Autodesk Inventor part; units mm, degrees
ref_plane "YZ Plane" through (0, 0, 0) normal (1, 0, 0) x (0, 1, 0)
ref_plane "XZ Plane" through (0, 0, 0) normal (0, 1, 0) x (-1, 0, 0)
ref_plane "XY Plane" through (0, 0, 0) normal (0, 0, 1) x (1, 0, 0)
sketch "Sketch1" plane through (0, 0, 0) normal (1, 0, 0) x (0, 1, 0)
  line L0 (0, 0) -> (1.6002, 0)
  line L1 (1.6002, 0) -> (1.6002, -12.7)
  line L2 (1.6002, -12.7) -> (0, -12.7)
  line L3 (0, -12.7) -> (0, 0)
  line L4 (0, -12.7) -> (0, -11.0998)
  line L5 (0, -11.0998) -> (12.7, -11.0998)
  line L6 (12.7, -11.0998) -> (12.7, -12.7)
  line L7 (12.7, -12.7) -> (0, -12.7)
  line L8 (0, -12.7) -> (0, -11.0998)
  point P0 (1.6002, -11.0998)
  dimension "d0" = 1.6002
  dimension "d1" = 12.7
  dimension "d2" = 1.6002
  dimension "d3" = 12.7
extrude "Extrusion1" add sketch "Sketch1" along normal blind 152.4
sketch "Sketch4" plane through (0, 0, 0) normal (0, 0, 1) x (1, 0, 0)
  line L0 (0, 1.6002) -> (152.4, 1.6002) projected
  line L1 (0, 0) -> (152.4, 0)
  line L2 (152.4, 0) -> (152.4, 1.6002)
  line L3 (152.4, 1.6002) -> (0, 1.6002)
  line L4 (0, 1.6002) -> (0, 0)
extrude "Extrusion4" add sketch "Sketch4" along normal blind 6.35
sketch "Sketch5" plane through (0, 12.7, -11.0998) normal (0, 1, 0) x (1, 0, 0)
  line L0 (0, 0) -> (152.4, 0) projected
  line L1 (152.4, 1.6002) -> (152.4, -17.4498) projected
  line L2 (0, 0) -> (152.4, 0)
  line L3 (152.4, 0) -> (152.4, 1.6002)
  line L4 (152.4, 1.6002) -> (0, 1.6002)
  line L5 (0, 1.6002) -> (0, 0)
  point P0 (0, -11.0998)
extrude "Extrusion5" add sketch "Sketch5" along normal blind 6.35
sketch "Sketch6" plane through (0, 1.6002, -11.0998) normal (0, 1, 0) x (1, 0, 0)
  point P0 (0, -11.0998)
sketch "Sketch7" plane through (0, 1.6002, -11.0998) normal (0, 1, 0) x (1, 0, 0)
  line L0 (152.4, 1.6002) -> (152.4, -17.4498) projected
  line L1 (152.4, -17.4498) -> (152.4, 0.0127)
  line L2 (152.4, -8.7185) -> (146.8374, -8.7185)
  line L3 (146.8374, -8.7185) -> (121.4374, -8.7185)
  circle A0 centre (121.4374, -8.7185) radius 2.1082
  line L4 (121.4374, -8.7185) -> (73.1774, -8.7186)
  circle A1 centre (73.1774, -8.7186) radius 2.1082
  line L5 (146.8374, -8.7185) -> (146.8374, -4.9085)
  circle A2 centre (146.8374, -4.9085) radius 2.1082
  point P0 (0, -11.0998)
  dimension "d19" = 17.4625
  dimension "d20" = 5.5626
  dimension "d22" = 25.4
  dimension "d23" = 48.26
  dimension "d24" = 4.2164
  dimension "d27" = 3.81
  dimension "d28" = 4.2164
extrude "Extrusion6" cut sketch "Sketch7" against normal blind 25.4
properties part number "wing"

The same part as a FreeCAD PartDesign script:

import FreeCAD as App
import Part
import Sketcher

V = App.Vector
Q = App.Units.Quantity

doc = App.newDocument("Part")
body = doc.addObject("PartDesign::Body", "Body")

# Sketch on YZ plane
sketch1 = body.newObject("Sketcher::SketchObject", "Sketch")
sketch1.AttachmentSupport = (doc.getObject("YZ_Plane"), [""])
sketch1.MapMode = "FlatFace"
sketch1.addGeometry([
    Part.LineSegment(V(1.6002, 0, 0), V(0, 0, 0)),  # 0
    Part.LineSegment(V(0, 0, 0), V(0, -12.7, 0)),  # 1
    Part.LineSegment(V(0, -12.7, 0), V(12.7, -12.7, 0)),  # 2
    Part.LineSegment(V(12.7, -12.7, 0), V(12.7, -11.0998, 0)),  # 3
    Part.LineSegment(V(12.7, -11.0998, 0), V(1.6002, -11.0998, 0)),  # 4
    Part.LineSegment(V(1.6002, -11.0998, 0), V(1.6002, 0, 0)),  # 5
], False)
sketch1.addConstraint([
    Sketcher.Constraint("Coincident", 0, 2, 1, 1),
    Sketcher.Constraint("Coincident", 1, 2, 2, 1),
    Sketcher.Constraint("Coincident", 2, 2, 3, 1),
    Sketcher.Constraint("Coincident", 3, 2, 4, 1),
    Sketcher.Constraint("Coincident", 4, 2, 5, 1),
    Sketcher.Constraint("Coincident", 5, 2, 0, 1),
    Sketcher.Constraint("Horizontal", 0),
    Sketcher.Constraint("Vertical", 1),
    Sketcher.Constraint("Horizontal", 2),
    Sketcher.Constraint("Vertical", 3),
    Sketcher.Constraint("Horizontal", 4),
    Sketcher.Constraint("Vertical", 5),
    Sketcher.Constraint("Coincident", 0, 2, -1, 1),
    Sketcher.Constraint("Equal", 2, 1),
    Sketcher.Constraint("Equal", 0, 3),
    Sketcher.Constraint("DistanceX", 2, 1, 2, 2, Q("0.5 in")),
    Sketcher.Constraint("DistanceX", 0, 2, 0, 1, Q("0.063 in")),
])
pad1 = body.newObject("PartDesign::Pad", "Pad")
pad1.Profile = sketch1
pad1.Length = Q("6 in")

# Sketch on XY plane
sketch2 = body.newObject("Sketcher::SketchObject", "Sketch001")
sketch2.AttachmentSupport = (doc.getObject("XY_Plane"), [""])
sketch2.MapMode = "FlatFace"
sketch2.addGeometry([
    Part.LineSegment(V(152.4, 1.6002, 0), V(0, 1.6002, 0)),
    Part.LineSegment(V(0, 1.6002, 0), V(0, 0, 0)),
    Part.LineSegment(V(0, 0, 0), V(152.4, 0, 0)),
    Part.LineSegment(V(152.4, 0, 0), V(152.4, 1.6002, 0)),
], False)
sketch2.addConstraint([
    Sketcher.Constraint("Coincident", 0, 2, 1, 1),
    Sketcher.Constraint("Coincident", 1, 2, 2, 1),
    Sketcher.Constraint("Coincident", 2, 2, 3, 1),
    Sketcher.Constraint("Coincident", 3, 2, 0, 1),
    Sketcher.Constraint("Horizontal", 0),
    Sketcher.Constraint("Vertical", 1),
    Sketcher.Constraint("Horizontal", 2),
    Sketcher.Constraint("Vertical", 3),
    Sketcher.Constraint("Coincident", 1, 2, -1, 1),
    Sketcher.Constraint("DistanceX", 0, 2, 0, 1, Q("6 in")),
    Sketcher.Constraint("DistanceY", 1, 2, 1, 1, Q("0.063 in")),
])
pad2 = body.newObject("PartDesign::Pad", "Pad001")
pad2.Profile = sketch2
pad2.Length = Q("0.25 in")

# Sketch on XZ plane
sketch3 = body.newObject("Sketcher::SketchObject", "Sketch002")
sketch3.AttachmentSupport = (doc.getObject("XZ_Plane"), [""])
sketch3.MapMode = "FlatFace"
sketch3.AttachmentOffset = App.Placement(V(0, 0, -0.5 * 25.4), App.Rotation())
sketch3.addGeometry([
    Part.LineSegment(V(0, -12.7, 0), V(0, -11.0998, 0)),
    Part.LineSegment(V(0, -11.0998, 0), V(152.4, -11.0998, 0)),
    Part.LineSegment(V(152.4, -11.0998, 0), V(152.4, -12.7, 0)),
    Part.LineSegment(V(152.4, -12.7, 0), V(0, -12.7, 0)),
], False)
sketch3.addConstraint([
    Sketcher.Constraint("Coincident", 0, 2, 1, 1),
    Sketcher.Constraint("Coincident", 1, 2, 2, 1),
    Sketcher.Constraint("Coincident", 2, 2, 3, 1),
    Sketcher.Constraint("Coincident", 3, 2, 0, 1),
    Sketcher.Constraint("Vertical", 0),
    Sketcher.Constraint("Horizontal", 1),
    Sketcher.Constraint("Vertical", 2),
    Sketcher.Constraint("Horizontal", 3),
    Sketcher.Constraint("PointOnObject", 0, 2, -2),
    Sketcher.Constraint("DistanceX", 1, 1, 1, 2, Q("6 in")),
    Sketcher.Constraint("DistanceY", 2, 2, -1, 1, Q("0.5 in")),
    Sketcher.Constraint("DistanceY", 0, 1, 0, 2, Q("0.063 in")),
])
pad3 = body.newObject("PartDesign::Pad", "Pad002")
pad3.Profile = sketch3
pad3.Length = Q("0.25 in")
pad3.Reversed = True

# Sketch on XZ plane
sketch4 = body.newObject("Sketcher::SketchObject", "Sketch003")
sketch4.AttachmentSupport = (doc.getObject("XZ_Plane"), [""])
sketch4.MapMode = "FlatFace"
sketch4.AttachmentOffset = App.Placement(V(0, 0, -0.063 * 25.4), App.Rotation())
sketch4.addGeometry([
    Part.Circle(V(73.1774, -2.3812, 0), V(0, 0, 1), 2.1082),
    Part.Circle(V(121.4374, -2.3813, 0), V(0, 0, 1), 2.1082),
    Part.Circle(V(146.8374, -6.1913, 0), V(0, 0, 1), 2.1082),
], False)
sketch4.addConstraint([
    Sketcher.Constraint("Equal", 0, 1),
    Sketcher.Constraint("Equal", 1, 2),
    Sketcher.Constraint("Horizontal", 0, 3, 1, 3),
    Sketcher.Constraint("Diameter", 0, Q("0.166 in")),
    Sketcher.Constraint("DistanceX", 1, 3, 2, 3, Q("1 in")),
    Sketcher.Constraint("DistanceX", 0, 3, 1, 3, Q("1.9 in")),
    Sketcher.Constraint("DistanceY", 2, 3, 1, 3, Q("0.15 in")),
    Sketcher.Constraint("DistanceX", -1, 1, 0, 3, Q("2.881 in")),
    Sketcher.Constraint("DistanceY", 0, 3, -1, 1, Q("0.093748 in")),
])
pocket1 = body.newObject("PartDesign::Pocket", "Pocket")
pocket1.Profile = sketch4
pocket1.Length = Q("1 in")
pocket1.Reversed = True

doc.recompute()
